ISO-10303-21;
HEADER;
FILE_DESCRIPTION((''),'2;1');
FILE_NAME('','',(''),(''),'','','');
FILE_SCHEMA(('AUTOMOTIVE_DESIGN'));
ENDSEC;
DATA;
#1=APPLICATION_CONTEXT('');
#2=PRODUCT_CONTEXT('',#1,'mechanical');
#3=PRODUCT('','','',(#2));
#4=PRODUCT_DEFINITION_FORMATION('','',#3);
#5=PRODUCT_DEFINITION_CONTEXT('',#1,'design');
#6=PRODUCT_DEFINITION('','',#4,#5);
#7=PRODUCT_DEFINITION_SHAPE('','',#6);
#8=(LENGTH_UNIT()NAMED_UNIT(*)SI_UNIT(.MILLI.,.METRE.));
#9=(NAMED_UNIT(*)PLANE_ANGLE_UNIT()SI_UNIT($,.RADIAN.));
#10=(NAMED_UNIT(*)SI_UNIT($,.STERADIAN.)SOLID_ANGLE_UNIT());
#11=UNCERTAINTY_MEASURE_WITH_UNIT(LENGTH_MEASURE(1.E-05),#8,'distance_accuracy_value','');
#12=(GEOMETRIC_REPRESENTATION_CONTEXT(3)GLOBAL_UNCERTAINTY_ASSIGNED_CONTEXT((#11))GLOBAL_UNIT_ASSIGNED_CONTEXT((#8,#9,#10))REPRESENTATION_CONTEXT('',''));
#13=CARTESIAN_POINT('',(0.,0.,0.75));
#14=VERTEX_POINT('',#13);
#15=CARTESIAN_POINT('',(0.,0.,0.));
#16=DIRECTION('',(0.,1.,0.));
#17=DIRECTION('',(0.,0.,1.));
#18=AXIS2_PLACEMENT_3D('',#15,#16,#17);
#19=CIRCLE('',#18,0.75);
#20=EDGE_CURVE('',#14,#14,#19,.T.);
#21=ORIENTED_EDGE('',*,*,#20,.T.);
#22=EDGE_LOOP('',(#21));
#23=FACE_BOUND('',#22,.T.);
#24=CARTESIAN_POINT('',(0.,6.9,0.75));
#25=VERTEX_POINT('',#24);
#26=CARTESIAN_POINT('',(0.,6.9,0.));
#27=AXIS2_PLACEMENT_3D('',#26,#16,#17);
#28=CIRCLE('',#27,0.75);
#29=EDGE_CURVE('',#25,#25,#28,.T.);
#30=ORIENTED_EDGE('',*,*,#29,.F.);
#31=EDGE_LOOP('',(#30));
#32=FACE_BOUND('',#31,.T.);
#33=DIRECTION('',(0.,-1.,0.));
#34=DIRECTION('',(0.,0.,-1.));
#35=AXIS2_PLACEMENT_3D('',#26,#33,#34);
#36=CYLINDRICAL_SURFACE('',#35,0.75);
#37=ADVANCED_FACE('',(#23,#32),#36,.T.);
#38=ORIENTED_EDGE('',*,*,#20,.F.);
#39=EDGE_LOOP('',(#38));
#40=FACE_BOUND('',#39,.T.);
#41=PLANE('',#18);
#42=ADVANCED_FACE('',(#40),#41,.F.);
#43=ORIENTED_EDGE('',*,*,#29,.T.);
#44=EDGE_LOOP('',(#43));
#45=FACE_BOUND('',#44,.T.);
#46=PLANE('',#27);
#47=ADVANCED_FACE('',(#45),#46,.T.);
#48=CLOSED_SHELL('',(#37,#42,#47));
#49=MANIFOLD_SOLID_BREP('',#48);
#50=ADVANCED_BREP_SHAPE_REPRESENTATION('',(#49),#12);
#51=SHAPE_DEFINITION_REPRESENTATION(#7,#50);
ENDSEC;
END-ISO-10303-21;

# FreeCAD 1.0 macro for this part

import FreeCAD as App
import Part
import Sketcher
Q = App.Units.Quantity

doc = App.newDocument("Part")
body = doc.addObject("PartDesign::Body", "Body")

sketch1 = doc.addObject("Sketcher::SketchObject", "Sketch")
body.addObject(sketch1)
sketch1.AttachmentSupport = (doc.XZ_Plane, [""])
sketch1.MapMode = "FlatFace"
sketch1.addGeometry(Part.Circle(App.Vector(0, 0, 0), App.Vector(0, 0, 1), 0.8), False)
sketch1.addConstraint(Sketcher.Constraint("Coincident", 0, 3, -1, 1))
sketch1.addConstraint(Sketcher.Constraint("Diameter", 0, Q("1.5 mm")))
pad1 = doc.addObject("PartDesign::Pad", "Pad")
body.addObject(pad1)
pad1.Profile = sketch1
pad1.Length = 6.9
pad1.Reversed = True

doc.recompute()
